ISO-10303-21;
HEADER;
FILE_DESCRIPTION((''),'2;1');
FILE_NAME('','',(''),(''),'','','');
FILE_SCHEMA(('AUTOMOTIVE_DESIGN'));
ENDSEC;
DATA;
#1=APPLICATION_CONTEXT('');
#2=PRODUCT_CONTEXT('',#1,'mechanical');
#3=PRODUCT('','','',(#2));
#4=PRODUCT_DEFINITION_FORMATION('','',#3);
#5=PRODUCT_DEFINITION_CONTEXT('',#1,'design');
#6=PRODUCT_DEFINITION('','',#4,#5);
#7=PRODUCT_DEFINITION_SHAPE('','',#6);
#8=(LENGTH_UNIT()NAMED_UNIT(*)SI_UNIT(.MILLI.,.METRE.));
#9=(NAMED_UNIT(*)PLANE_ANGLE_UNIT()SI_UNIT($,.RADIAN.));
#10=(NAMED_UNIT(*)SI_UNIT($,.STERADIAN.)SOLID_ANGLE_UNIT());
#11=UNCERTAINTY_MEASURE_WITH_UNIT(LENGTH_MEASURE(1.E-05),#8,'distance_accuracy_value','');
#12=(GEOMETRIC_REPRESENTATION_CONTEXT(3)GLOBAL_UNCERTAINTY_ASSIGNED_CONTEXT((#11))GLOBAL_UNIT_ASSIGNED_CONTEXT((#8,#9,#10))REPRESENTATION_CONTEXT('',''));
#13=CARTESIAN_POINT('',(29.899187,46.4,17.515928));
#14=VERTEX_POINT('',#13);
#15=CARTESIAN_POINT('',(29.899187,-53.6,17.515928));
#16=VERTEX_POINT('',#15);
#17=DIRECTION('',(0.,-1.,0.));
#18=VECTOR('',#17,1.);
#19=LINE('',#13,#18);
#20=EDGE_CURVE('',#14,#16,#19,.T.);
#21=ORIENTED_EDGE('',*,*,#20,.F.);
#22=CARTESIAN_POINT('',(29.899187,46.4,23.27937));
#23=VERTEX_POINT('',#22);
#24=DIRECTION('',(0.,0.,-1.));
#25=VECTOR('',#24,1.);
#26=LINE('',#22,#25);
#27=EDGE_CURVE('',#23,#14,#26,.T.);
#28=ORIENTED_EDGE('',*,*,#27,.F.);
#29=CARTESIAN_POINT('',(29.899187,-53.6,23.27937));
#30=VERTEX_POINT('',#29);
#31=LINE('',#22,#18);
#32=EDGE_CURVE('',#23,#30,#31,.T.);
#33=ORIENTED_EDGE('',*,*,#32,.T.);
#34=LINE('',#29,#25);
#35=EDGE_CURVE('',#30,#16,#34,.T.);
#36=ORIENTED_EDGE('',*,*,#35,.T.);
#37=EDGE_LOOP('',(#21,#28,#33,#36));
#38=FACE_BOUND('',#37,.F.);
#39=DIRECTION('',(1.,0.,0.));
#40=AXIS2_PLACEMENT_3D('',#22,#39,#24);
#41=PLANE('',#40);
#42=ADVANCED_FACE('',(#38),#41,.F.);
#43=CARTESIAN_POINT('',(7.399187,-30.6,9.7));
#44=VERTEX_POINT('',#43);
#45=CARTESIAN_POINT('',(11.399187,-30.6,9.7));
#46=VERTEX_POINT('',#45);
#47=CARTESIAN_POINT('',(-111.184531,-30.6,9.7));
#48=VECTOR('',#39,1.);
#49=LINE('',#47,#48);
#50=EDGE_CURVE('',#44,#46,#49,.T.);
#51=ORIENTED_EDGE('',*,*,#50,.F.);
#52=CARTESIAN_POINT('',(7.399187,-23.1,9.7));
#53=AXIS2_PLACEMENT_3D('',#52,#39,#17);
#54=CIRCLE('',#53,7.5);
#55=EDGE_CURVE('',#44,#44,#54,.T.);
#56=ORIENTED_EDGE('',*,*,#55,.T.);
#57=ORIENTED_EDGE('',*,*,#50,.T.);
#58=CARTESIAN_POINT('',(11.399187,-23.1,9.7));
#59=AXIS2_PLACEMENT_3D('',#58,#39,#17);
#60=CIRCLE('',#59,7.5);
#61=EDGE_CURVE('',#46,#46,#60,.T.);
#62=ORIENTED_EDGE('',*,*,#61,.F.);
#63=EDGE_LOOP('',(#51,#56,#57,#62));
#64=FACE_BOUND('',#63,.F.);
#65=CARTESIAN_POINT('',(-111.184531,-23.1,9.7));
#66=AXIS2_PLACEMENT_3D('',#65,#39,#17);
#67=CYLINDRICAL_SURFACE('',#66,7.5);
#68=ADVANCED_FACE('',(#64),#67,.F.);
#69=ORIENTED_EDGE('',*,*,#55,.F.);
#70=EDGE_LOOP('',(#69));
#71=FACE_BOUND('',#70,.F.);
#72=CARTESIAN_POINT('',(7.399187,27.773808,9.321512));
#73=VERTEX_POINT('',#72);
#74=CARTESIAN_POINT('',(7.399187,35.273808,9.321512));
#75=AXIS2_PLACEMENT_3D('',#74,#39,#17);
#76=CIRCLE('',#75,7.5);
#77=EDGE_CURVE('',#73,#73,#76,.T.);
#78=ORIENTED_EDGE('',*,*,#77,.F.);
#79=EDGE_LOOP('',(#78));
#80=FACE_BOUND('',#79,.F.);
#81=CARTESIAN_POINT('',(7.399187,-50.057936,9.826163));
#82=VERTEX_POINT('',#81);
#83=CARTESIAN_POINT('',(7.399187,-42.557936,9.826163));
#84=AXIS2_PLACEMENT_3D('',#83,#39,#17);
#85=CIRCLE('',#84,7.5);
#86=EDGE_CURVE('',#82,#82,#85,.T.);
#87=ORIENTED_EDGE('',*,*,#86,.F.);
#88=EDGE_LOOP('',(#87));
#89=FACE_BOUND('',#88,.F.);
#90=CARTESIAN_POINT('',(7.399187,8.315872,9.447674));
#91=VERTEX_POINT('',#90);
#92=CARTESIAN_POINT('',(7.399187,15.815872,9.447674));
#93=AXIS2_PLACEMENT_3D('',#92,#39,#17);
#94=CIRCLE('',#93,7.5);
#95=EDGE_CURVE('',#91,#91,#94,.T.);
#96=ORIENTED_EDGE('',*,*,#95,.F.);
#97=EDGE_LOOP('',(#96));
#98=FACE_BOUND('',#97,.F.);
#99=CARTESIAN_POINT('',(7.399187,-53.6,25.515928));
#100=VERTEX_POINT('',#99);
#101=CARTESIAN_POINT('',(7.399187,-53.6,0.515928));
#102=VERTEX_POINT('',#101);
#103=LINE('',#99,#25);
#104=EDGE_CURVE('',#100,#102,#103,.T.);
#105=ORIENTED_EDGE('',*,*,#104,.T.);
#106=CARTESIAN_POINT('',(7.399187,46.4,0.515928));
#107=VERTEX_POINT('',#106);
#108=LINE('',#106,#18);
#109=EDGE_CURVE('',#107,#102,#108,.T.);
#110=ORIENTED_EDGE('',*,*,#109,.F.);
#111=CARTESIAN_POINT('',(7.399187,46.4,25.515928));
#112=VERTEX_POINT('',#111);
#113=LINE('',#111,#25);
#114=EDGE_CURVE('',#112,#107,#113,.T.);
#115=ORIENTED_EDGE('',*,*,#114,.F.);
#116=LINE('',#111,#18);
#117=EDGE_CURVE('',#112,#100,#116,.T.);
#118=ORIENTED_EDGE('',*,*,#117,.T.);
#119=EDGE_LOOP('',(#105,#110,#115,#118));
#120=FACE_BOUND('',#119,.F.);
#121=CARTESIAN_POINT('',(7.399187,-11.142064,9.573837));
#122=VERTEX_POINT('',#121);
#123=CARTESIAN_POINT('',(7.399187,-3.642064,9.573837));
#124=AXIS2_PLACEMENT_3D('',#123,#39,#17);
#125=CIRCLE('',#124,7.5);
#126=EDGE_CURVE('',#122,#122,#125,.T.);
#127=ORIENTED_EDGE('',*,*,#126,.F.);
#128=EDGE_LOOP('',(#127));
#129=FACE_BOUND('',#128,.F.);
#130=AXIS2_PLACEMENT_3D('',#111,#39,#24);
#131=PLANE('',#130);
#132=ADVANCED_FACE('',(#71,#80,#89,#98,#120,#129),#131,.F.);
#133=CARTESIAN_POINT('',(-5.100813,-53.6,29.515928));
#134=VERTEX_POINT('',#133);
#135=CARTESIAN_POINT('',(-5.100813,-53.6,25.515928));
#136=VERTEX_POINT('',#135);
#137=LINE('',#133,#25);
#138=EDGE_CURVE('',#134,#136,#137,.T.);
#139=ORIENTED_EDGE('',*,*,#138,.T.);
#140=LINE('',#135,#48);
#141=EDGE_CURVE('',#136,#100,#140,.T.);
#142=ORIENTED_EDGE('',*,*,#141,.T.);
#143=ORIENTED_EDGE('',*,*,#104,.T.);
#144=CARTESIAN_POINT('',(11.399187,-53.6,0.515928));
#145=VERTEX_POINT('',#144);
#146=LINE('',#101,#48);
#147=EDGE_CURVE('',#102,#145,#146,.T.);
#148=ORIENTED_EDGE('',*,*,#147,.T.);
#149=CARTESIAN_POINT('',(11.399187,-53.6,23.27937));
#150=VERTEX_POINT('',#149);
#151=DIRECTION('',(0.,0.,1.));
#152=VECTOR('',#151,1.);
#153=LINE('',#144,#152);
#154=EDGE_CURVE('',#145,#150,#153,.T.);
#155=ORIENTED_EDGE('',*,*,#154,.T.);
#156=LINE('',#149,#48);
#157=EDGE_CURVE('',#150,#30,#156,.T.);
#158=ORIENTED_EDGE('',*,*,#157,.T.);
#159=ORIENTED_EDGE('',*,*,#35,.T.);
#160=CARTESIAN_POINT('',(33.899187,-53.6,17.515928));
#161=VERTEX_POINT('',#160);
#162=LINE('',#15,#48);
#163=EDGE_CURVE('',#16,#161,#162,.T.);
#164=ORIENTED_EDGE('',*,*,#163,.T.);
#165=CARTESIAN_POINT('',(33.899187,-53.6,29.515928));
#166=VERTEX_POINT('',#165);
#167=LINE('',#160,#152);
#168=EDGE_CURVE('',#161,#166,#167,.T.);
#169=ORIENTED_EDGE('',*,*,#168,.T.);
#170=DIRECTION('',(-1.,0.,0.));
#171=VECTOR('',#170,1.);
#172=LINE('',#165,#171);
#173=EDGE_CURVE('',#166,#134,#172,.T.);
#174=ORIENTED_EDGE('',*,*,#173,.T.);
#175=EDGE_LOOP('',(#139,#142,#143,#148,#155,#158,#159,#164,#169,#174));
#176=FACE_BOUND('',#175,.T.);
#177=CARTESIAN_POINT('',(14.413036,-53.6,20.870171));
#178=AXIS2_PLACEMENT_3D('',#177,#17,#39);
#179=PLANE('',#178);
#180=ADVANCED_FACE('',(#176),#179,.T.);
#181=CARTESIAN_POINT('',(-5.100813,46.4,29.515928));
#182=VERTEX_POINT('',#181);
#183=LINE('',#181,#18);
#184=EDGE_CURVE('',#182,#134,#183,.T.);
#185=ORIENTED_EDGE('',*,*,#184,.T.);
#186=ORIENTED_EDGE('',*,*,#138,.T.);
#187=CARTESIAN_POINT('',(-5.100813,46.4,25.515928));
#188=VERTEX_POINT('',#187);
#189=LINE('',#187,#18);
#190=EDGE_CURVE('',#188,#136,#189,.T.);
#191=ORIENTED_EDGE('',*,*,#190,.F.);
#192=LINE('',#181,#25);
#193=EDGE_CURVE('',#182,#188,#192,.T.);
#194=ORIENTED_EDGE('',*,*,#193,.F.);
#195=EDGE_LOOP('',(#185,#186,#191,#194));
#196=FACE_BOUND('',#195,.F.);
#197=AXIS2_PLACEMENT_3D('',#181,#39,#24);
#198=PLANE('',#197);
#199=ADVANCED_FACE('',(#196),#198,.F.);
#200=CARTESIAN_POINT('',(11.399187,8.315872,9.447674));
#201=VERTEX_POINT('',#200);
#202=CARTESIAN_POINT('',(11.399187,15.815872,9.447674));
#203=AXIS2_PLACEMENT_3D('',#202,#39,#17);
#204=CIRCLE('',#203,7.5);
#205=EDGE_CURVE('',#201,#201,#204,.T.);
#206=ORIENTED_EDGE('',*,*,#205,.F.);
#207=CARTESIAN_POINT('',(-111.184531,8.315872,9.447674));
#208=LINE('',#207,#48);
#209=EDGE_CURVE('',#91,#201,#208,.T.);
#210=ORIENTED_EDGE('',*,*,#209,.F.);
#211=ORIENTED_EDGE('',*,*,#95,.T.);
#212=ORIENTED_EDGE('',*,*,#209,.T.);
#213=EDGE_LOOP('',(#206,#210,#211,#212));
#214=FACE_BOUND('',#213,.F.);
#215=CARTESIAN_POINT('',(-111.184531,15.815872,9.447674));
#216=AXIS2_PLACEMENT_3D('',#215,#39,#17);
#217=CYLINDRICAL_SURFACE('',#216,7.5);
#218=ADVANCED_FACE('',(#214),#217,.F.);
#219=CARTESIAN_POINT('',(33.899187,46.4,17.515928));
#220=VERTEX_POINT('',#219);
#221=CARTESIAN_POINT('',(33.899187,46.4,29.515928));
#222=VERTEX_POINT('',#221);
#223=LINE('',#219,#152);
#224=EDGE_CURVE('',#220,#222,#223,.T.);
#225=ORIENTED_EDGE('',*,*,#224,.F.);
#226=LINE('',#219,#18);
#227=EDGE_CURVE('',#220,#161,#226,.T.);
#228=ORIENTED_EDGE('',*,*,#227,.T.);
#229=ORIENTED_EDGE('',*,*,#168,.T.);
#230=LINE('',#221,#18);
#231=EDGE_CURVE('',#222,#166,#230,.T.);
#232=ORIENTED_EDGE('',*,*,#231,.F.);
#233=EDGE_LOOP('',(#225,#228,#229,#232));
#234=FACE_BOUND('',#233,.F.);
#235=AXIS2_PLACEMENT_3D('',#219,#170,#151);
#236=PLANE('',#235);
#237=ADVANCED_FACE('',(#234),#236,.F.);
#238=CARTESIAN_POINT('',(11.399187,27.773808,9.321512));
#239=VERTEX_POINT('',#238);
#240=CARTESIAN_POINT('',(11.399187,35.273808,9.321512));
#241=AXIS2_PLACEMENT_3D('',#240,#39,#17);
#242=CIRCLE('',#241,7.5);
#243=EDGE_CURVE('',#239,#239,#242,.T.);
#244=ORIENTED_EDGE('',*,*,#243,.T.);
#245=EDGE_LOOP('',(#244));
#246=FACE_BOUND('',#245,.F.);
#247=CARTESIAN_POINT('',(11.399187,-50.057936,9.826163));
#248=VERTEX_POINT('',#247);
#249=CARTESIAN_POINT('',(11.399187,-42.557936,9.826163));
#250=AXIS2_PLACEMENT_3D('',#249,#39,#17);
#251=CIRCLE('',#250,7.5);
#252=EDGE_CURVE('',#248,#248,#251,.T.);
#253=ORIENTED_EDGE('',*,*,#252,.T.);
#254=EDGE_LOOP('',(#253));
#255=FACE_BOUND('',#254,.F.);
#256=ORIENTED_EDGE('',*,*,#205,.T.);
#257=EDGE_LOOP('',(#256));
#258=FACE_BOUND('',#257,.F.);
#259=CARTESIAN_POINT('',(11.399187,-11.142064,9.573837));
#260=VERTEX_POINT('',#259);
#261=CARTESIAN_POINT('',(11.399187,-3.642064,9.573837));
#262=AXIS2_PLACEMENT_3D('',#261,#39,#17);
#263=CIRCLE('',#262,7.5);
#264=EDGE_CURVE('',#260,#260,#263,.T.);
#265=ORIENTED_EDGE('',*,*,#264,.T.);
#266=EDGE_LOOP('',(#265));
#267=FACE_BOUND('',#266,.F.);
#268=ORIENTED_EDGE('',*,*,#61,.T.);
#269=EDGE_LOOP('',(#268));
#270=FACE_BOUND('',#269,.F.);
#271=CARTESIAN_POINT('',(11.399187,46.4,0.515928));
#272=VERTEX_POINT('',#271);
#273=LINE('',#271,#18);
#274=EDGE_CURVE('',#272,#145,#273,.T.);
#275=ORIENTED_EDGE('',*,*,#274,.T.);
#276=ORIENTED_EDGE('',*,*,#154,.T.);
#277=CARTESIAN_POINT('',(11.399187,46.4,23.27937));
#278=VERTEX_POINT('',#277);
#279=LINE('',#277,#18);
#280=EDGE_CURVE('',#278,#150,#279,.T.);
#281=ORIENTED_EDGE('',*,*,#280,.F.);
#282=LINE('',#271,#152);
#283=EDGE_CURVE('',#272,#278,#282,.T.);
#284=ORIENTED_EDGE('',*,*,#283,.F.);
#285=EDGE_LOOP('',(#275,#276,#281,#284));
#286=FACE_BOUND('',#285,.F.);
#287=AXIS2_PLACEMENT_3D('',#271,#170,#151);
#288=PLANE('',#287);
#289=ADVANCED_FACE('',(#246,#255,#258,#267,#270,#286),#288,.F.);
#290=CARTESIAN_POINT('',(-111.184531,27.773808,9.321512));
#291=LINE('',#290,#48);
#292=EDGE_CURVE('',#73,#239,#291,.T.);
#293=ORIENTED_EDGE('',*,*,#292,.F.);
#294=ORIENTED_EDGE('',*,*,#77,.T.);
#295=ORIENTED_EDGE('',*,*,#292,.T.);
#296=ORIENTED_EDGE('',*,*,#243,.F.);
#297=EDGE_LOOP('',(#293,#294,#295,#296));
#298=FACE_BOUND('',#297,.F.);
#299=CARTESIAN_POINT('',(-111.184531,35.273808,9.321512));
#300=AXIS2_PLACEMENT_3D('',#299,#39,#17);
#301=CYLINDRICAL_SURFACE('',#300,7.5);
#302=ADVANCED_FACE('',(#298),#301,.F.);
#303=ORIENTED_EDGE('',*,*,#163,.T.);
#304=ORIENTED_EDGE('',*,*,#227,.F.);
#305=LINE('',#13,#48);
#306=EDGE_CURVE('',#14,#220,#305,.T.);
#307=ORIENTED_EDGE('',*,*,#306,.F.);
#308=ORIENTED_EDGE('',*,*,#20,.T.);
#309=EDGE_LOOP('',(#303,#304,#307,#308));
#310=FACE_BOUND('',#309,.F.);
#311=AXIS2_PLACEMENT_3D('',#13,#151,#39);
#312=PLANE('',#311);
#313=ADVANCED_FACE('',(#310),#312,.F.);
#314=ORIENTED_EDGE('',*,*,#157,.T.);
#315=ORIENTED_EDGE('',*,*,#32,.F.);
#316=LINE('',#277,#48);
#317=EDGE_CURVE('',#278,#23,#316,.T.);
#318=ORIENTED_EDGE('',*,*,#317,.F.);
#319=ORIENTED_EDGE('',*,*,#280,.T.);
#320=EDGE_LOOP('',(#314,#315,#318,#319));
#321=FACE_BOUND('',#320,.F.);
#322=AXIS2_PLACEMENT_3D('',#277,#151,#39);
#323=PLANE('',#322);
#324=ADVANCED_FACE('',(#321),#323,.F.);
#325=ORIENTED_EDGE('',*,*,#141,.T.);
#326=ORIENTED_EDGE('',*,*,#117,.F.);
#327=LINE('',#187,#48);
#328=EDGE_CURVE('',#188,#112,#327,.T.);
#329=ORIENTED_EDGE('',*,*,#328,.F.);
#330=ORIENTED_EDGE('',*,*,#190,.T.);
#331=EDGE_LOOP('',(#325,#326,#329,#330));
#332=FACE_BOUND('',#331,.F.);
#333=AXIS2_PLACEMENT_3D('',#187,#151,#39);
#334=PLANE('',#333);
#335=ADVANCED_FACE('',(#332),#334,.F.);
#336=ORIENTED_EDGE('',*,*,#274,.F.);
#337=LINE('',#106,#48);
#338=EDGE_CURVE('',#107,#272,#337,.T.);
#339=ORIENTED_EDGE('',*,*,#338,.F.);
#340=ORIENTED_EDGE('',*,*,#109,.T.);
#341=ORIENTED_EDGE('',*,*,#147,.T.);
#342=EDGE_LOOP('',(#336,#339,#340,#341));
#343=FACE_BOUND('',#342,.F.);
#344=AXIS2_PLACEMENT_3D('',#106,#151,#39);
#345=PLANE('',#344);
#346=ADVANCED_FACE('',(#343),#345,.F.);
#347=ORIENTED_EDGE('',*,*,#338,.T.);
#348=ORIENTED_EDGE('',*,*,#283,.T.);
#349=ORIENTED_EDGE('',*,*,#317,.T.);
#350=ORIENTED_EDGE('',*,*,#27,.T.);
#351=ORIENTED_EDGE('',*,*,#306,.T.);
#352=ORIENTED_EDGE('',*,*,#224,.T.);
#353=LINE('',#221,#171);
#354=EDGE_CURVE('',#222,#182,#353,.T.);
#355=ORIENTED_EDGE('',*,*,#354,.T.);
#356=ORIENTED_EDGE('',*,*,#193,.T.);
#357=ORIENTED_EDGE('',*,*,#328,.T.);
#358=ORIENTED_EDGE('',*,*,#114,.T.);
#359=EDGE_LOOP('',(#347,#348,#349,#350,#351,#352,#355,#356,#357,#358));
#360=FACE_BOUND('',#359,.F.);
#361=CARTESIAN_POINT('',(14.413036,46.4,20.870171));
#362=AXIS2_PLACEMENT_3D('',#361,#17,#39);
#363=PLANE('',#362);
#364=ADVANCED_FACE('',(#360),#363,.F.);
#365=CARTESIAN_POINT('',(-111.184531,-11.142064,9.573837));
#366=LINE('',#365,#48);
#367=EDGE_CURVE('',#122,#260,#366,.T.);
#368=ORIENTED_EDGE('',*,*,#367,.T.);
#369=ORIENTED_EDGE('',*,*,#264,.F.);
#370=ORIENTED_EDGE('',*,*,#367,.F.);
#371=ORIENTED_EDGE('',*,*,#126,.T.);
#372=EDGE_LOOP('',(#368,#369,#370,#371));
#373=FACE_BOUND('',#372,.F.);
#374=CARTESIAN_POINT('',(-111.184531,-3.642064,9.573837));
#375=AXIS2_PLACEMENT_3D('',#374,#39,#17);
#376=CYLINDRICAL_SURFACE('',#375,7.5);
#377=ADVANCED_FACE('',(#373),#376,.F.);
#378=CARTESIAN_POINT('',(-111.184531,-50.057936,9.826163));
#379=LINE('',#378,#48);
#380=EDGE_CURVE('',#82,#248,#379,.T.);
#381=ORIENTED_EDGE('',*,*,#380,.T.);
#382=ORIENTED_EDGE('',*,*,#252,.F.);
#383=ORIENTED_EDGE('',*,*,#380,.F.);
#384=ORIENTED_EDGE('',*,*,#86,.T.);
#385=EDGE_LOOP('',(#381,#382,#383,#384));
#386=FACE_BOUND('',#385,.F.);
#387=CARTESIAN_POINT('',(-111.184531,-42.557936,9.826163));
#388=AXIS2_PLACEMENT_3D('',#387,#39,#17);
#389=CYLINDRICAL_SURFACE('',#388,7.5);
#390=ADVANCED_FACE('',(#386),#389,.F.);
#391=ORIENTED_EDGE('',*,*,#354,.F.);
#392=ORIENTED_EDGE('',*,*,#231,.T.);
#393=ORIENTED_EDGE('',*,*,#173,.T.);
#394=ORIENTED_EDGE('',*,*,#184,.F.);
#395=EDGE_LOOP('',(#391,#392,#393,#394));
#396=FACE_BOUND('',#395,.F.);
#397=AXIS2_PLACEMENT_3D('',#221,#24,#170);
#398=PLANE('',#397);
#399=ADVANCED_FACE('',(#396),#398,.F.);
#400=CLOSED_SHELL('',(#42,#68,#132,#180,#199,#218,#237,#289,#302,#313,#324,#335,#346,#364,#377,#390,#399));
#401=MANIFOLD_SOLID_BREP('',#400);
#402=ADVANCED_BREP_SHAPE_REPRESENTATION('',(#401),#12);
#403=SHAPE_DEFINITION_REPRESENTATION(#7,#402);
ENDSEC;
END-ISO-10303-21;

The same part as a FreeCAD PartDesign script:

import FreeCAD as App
import Part
import Sketcher
from FreeCAD import Vector
Q = App.Units.Quantity


def add_polygon(sketch, points):
    """Adds a closed chain of lines whose ends are joined by coincident constraints."""
    first, n = sketch.GeometryCount, len(points)
    for a, b in zip(points, points[1:] + points[:1]):
        sketch.addGeometry(Part.LineSegment(App.Vector(*a, 0), App.Vector(*b, 0)), False)
    for i in range(n):
        sketch.addConstraint(Sketcher.Constraint("Coincident", first + i, 2, first + (i + 1) % n, 1))

doc = App.newDocument("Part")
body = doc.addObject("PartDesign::Body", "Body")

# Sketch on XZ plane
sketch1 = body.newObject("Sketcher::SketchObject", "Sketch")
sketch1.AttachmentSupport = (doc.getObject("XZ_Plane"), [""])
sketch1.MapMode = "FlatFace"
add_polygon(sketch1, [(29.9, 23.9), (29.9, 18.1), (33.9, 18.1), (33.9, 30.1), (-5.1, 30.1), (-5.1, 26.1), (7.4, 26.1), (7.4, 1.1), (11.4, 1.1), (11.4, 23.9)])  # lines 0-9
sketch1.addConstraint([
    Sketcher.Constraint("Vertical", 0),
    Sketcher.Constraint("Horizontal", 1),
    Sketcher.Constraint("Vertical", 2),
    Sketcher.Constraint("Horizontal", 3),
    Sketcher.Constraint("Vertical", 4),
    Sketcher.Constraint("Horizontal", 5),
    Sketcher.Constraint("Vertical", 6),
    Sketcher.Constraint("Horizontal", 7),
    Sketcher.Constraint("Vertical", 8),
    Sketcher.Constraint("Horizontal", 9),
    Sketcher.Constraint("Equal", 1, 7),
    Sketcher.Constraint("Equal", 7, 4),
    Sketcher.Constraint("DistanceX", 1, 1, 1, 2, Q("4 mm")),
    Sketcher.Constraint("DistanceX", 3, 2, 3, 1, Q("39 mm")),
    Sketcher.Constraint("DistanceY", 2, 1, 2, 2, Q("12 mm")),
    Sketcher.Constraint("DistanceY", 6, 2, 6, 1, Q("25 mm")),
    Sketcher.Constraint("DistanceX", 5, 1, 5, 2, Q("12.5 mm")),
    Sketcher.Constraint("DistanceY", 0, 2, 0, 1, Q("5.763441 mm")),
    Sketcher.Constraint("DistanceY", -1, 1, 0, 2, Q("18.115928 mm")),
    Sketcher.Constraint("DistanceX", -1, 1, 0, 2, Q("29.899187 mm")),
])
pad1 = body.newObject("PartDesign::Pad", "Pad")
pad1.Profile = sketch1
pad1.Length = 100
body2 = doc.addObject("PartDesign::Body", "Body001")
doc.recompute()

body.Placement = App.Placement(Vector(0, 46.4, -0.6), App.Rotation(Vector(0, 0, 1), 0))
boolean = body2.newObject("PartDesign::Boolean", "Boolean")
boolean.Type = "Fuse"
boolean.addObjects([body])

# Sketch on YZ plane
sketch2 = body2.newObject("Sketcher::SketchObject", "Sketch001")
sketch2.AttachmentSupport = (doc.getObject("YZ_Plane001"), [""])
sketch2.MapMode = "FlatFace"
sketch2.addGeometry([
    Part.Circle(Vector(35, 9, 0), Vector(0, 0, 1), 8),  # 0
    Part.Circle(Vector(16, 9, 0), Vector(0, 0, 1), 8),  # 1
    Part.Circle(Vector(-4, 10, 0), Vector(0, 0, 1), 8),  # 2
    Part.Circle(Vector(-23, 10, 0), Vector(0, 0, 1), 8),  # 3
    Part.Circle(Vector(-43, 10, 0), Vector(0, 0, 1), 8),  # 4
], False)
sketch2.addConstraint([
    Sketcher.Constraint("Equal", 0, 1),
    Sketcher.Constraint("Equal", 1, 2),
    Sketcher.Constraint("Equal", 2, 3),
    Sketcher.Constraint("Equal", 3, 4),
    Sketcher.Constraint("Diameter", 0, Q("15 mm")),
    Sketcher.Constraint("DistanceX", 3, 3, -1, 1, Q("23.1 mm")),
    Sketcher.Constraint("DistanceY", -1, 1, 3, 3, Q("9.7 mm")),
    Sketcher.Constraint("DistanceX", -1, 1, 0, 3, Q("35.273808 mm")),
    Sketcher.Constraint("DistanceY", -1, 1, 0, 3, Q("9.321512 mm")),
    Sketcher.Constraint("DistanceX", 4, 3, 1, 3, Q("58.373808 mm")),
    Sketcher.Constraint("DistanceY", 1, 3, 4, 3, Q("0.378488 mm")),
    Sketcher.Constraint("DistanceY", 0, 3, 4, 3, Q("0.504651 mm")),
    Sketcher.Constraint("DistanceX", -1, 1, 1, 3, Q("15.815872 mm")),
    Sketcher.Constraint("DistanceX", 2, 3, -1, 1, Q("3.642064 mm")),
    Sketcher.Constraint("DistanceY", -1, 1, 2, 3, Q("9.573837 mm")),
])
doc.recompute()
hole = body2.newObject("PartDesign::Hole", "Hole")
hole.Profile = sketch2
hole.ThreadType = "None"
hole.Diameter = 15
hole.DepthType = "ThroughAll"
hole.Reversed = True

doc.recompute()
